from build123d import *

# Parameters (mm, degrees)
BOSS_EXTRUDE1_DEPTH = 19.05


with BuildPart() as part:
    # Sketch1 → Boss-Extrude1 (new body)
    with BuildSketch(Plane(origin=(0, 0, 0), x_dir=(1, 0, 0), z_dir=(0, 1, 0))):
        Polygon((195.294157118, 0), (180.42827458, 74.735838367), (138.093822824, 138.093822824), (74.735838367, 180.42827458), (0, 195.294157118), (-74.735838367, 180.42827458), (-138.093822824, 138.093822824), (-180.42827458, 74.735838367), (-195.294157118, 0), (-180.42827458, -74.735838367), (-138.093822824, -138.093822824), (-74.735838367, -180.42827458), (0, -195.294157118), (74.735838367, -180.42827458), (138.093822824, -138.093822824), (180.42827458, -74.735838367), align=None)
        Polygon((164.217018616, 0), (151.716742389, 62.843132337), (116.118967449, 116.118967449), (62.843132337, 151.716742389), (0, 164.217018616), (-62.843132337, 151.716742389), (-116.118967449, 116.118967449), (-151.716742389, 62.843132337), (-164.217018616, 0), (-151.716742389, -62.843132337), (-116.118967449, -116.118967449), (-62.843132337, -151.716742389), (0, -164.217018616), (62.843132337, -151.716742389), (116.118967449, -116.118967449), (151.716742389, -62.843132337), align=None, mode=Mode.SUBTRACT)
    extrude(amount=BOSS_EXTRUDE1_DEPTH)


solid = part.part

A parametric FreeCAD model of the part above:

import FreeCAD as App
import Part
import Sketcher
Q = App.Units.Quantity


def add_polygon(sketch, points):
    """Adds a closed chain of lines whose ends are joined by coincident constraints."""
    first, n = sketch.GeometryCount, len(points)
    for a, b in zip(points, points[1:] + points[:1]):
        sketch.addGeometry(Part.LineSegment(App.Vector(*a, 0), App.Vector(*b, 0)), False)
    for i in range(n):
        sketch.addConstraint(Sketcher.Constraint("Coincident", first + i, 2, first + (i + 1) % n, 1))

doc = App.newDocument("Part")
params = doc.addObject("Spreadsheet::Sheet", "Params")
for row, (alias, value) in enumerate([
    ("sketch1_length", "3 in"),
    ("pad1_length", "0.75 in"),
], start=1):
    params.set(f"A{row}", alias)
    params.set(f"B{row}", "=" + value)
    params.setAlias(f"B{row}", alias)

body = doc.addObject("PartDesign::Body", "Body")

# Sketch on XZ plane
sketch1 = body.newObject("Sketcher::SketchObject", "Sketch")
sketch1.AttachmentSupport = (doc.getObject("XZ_Plane"), [""])
sketch1.MapMode = "FlatFace"
add_polygon(sketch1, [(195, 0), (180, -75), (138, -138), (75, -180), (0, -195), (-75, -180), (-138, -138), (-180, -75), (-195, 0), (-180, 75), (-138, 138), (-75, 180), (0, 195), (75, 180), (138, 138), (180, 75)])  # lines 0-15
add_polygon(sketch1, [(152, -63), (164, 0), (152, 63), (116, 116), (63, 152), (0, 164), (-63, 152), (-116, 116), (-152, 63), (-164, 0), (-152, -63), (-116, -116), (-63, -152), (0, -164), (63, -152), (116, -116)])  # lines 16-31
sketch1.addConstraint(Sketcher.Constraint("Symmetric", 0, 2, 8, 2, -1, 1))
sketch1.addConstraint(Sketcher.Constraint("Symmetric", 1, 2, 9, 2, -1, 1))
sketch1.addConstraint(Sketcher.Constraint("Symmetric", 2, 2, 10, 2, -1, 1))
sketch1.addConstraint(Sketcher.Constraint("Symmetric", 3, 2, 11, 2, -1, 1))
sketch1.addConstraint(Sketcher.Constraint("Symmetric", 4, 2, 12, 2, -1, 1))
sketch1.addConstraint(Sketcher.Constraint("Symmetric", 5, 2, 13, 2, -1, 1))
sketch1.addConstraint(Sketcher.Constraint("Symmetric", 6, 2, 14, 2, -1, 1))
sketch1.addConstraint(Sketcher.Constraint("Symmetric", 7, 2, 15, 2, -1, 1))
sketch1.addConstraint(Sketcher.Constraint("Symmetric", 16, 2, 24, 2, -1, 1))
sketch1.addConstraint(Sketcher.Constraint("Symmetric", 17, 2, 25, 2, -1, 1))
sketch1.addConstraint(Sketcher.Constraint("Symmetric", 18, 2, 26, 2, -1, 1))
sketch1.addConstraint(Sketcher.Constraint("Symmetric", 19, 2, 27, 2, -1, 1))
sketch1.addConstraint(Sketcher.Constraint("Symmetric", 20, 2, 28, 2, -1, 1))
sketch1.addConstraint(Sketcher.Constraint("Symmetric", 21, 2, 29, 2, -1, 1))
sketch1.addConstraint(Sketcher.Constraint("Symmetric", 22, 2, 30, 2, -1, 1))
sketch1.addConstraint(Sketcher.Constraint("Symmetric", 23, 2, 31, 2, -1, 1))
sketch1.addConstraint(Sketcher.Constraint("Symmetric", 2, 2, 4, 2, -2))
sketch1.addConstraint(Sketcher.Constraint("Symmetric", 1, 2, 5, 2, -2))
sketch1.addConstraint(Sketcher.Constraint("Symmetric", 0, 2, 6, 2, -2))
sketch1.addConstraint(Sketcher.Constraint("Symmetric", 19, 2, 21, 2, -2))
sketch1.addConstraint(Sketcher.Constraint("Symmetric", 18, 2, 22, 2, -2))
sketch1.addConstraint(Sketcher.Constraint("Symmetric", 17, 2, 23, 2, -2))
sketch1.addConstraint(Sketcher.Constraint("PointOnObject", 3, 2, -2))
sketch1.addConstraint(Sketcher.Constraint("PointOnObject", 7, 2, -1))
sketch1.addConstraint(Sketcher.Constraint("PointOnObject", 16, 2, -1))
sketch1.addConstraint(Sketcher.Constraint("PointOnObject", 20, 2, -2))
sketch1.addConstraint(Sketcher.Constraint("Perpendicular", 0, 4))
sketch1.addConstraint(Sketcher.Constraint("Perpendicular", 1, 5))
sketch1.addConstraint(Sketcher.Constraint("Perpendicular", 12, 16))
sketch1.addConstraint(Sketcher.Constraint("Parallel", 14, 18))
sketch1.addConstraint(Sketcher.Constraint("Parallel", 13, 19))
sketch1.addConstraint(Sketcher.Constraint("Perpendicular", 16, 20))
sketch1.addConstraint(Sketcher.Constraint("Equal", 0, 1))
sketch1.addConstraint(Sketcher.Constraint("Equal", 1, 2))
sketch1.addConstraint(Sketcher.Constraint("Equal", 2, 3))
sketch1.addConstraint(Sketcher.Constraint("Equal", 17, 18))
sketch1.addConstraint(Sketcher.Constraint("Equal", 18, 19))
sketch1.addConstraint(Sketcher.Constraint("Equal", 19, 20))
sketch1.addConstraint(Sketcher.Constraint("Distance", 0, Q("3 in")))
sketch1.addConstraint(Sketcher.Constraint("Angle", 0, Q("-101.25 deg")))
sketch1.addConstraint(Sketcher.Constraint("Angle", 1, Q("-123.75 deg")))
sketch1.addConstraint(Sketcher.Constraint("DistanceX", -1, 1, 17, 2, Q("5.9731001 in")))
sketch1.setExpression("Constraints[70]", "Params.sketch1_length")
pad1 = body.newObject("PartDesign::Pad", "Pad")
pad1.Profile = sketch1
pad1.setExpression("Length", "Params.pad1_length")
pad1.Reversed = True

doc.recompute()
